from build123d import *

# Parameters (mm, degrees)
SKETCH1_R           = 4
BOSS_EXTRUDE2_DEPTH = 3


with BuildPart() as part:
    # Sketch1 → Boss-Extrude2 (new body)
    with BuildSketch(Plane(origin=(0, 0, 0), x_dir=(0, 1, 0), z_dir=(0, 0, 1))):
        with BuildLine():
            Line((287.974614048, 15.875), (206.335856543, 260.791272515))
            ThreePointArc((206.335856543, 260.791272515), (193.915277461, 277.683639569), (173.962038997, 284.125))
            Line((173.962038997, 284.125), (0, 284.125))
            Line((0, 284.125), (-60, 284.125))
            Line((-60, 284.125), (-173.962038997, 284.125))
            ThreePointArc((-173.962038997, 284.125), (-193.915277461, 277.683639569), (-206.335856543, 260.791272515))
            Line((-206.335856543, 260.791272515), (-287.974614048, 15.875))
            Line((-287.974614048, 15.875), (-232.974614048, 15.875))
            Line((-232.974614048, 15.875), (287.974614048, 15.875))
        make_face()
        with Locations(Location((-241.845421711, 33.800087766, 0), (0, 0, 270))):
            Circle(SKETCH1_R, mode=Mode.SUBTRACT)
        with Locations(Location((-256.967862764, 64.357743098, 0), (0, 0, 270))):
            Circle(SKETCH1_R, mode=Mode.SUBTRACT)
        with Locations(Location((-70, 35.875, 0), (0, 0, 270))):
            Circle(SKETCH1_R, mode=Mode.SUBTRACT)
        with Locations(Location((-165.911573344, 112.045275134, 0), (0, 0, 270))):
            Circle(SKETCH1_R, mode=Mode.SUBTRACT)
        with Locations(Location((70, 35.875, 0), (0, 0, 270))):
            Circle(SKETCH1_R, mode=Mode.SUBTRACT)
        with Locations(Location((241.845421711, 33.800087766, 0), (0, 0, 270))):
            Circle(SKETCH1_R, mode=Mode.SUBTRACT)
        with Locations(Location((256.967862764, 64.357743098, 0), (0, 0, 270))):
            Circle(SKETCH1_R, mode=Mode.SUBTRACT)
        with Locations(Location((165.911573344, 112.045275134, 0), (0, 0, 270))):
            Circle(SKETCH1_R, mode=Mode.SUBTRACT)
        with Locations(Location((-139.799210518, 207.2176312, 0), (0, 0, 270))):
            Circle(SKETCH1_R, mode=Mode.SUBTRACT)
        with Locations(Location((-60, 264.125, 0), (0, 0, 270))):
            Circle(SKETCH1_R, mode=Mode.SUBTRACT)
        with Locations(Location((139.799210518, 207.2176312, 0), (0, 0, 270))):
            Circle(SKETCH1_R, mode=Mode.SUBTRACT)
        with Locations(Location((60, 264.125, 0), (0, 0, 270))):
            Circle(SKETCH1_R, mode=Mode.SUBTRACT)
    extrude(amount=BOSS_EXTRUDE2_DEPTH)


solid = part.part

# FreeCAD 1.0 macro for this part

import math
import FreeCAD as App
import Part
import Sketcher

V = App.Vector

doc = App.newDocument("Part")
body = doc.addObject("PartDesign::Body", "Body")

sketch1 = doc.addObject("Sketcher::SketchObject", "Sketch")
body.addObject(sketch1)
sketch1.AttachmentSupport = (doc.XY_Plane, [""])
sketch1.MapMode = "FlatFace"
sketch1.addGeometry(Part.LineSegment(V(-15.9, 288, 0), V(-260.8, 206.3, 0)), False)
sketch1.addGeometry(Part.ArcOfCircle(Part.Circle(V(-250, 174, 0), V(0, 0, 1), 34.1), math.radians(108), math.radians(180)), False)
sketch1.addGeometry(Part.LineSegment(V(-284.1, 174, 0), V(-284.1, -174, 0)), False)
sketch1.addGeometry(Part.ArcOfCircle(Part.Circle(V(-250, -174, 0), V(0, 0, 1), 34.1), math.radians(180), math.radians(252)), False)
sketch1.addGeometry(Part.LineSegment(V(-260.8, -206.3, 0), V(-15.9, -288, 0)), False)
sketch1.addGeometry(Part.LineSegment(V(-15.9, -288, 0), V(-15.9, 288, 0)), False)
sketch1.addGeometry(Part.Circle(V(-33.8, -241.8, 0), V(0, 0, 1), 4), False)
sketch1.addGeometry(Part.Circle(V(-64.4, -257, 0), V(0, 0, 1), 4), False)
sketch1.addGeometry(Part.Circle(V(-35.9, -70, 0), V(0, 0, 1), 4), False)
sketch1.addGeometry(Part.Circle(V(-112, -165.9, 0), V(0, 0, 1), 4), False)
sketch1.addGeometry(Part.Circle(V(-35.9, 70, 0), V(0, 0, 1), 4), False)
sketch1.addGeometry(Part.Circle(V(-33.8, 241.8, 0), V(0, 0, 1), 4), False)
sketch1.addGeometry(Part.Circle(V(-64.4, 257, 0), V(0, 0, 1), 4), False)
sketch1.addGeometry(Part.Circle(V(-112, 165.9, 0), V(0, 0, 1), 4), False)
sketch1.addGeometry(Part.Circle(V(-207.2, -139.8, 0), V(0, 0, 1), 4), False)
sketch1.addGeometry(Part.Circle(V(-264.1, -60, 0), V(0, 0, 1), 4), False)
sketch1.addGeometry(Part.Circle(V(-207.2, 139.8, 0), V(0, 0, 1), 4), False)
sketch1.addGeometry(Part.Circle(V(-264.1, 60, 0), V(0, 0, 1), 4), False)
sketch1.addConstraint(Sketcher.Constraint("Tangent", 0, 2, 1, 1))
sketch1.addConstraint(Sketcher.Constraint("Tangent", 1, 2, 2, 1))
sketch1.addConstraint(Sketcher.Constraint("Tangent", 2, 2, 3, 1))
sketch1.addConstraint(Sketcher.Constraint("Tangent", 3, 2, 4, 1))
sketch1.addConstraint(Sketcher.Constraint("Coincident", 4, 2, 5, 1))
sketch1.addConstraint(Sketcher.Constraint("Coincident", 5, 2, 0, 1))
sketch1.addConstraint(Sketcher.Constraint("Vertical", 2))
sketch1.addConstraint(Sketcher.Constraint("Vertical", 5))
sketch1.addConstraint(Sketcher.Constraint("Equal", 1, 3))
sketch1.addConstraint(Sketcher.Constraint("Equal", 6, 7))
sketch1.addConstraint(Sketcher.Constraint("Equal", 7, 8))
sketch1.addConstraint(Sketcher.Constraint("Equal", 8, 9))
sketch1.addConstraint(Sketcher.Constraint("Equal", 9, 10))
sketch1.addConstraint(Sketcher.Constraint("Equal", 10, 11))
sketch1.addConstraint(Sketcher.Constraint("Equal", 11, 12))
sketch1.addConstraint(Sketcher.Constraint("Equal", 12, 13))
sketch1.addConstraint(Sketcher.Constraint("Equal", 13, 14))
sketch1.addConstraint(Sketcher.Constraint("Equal", 14, 15))
sketch1.addConstraint(Sketcher.Constraint("Equal", 15, 16))
sketch1.addConstraint(Sketcher.Constraint("Equal", 16, 17))
sketch1.addConstraint(Sketcher.Constraint("Symmetric", 8, 3, 10, 3, -1))
sketch1.addConstraint(Sketcher.Constraint("Symmetric", 6, 3, 11, 3, -1))
sketch1.addConstraint(Sketcher.Constraint("Symmetric", 7, 3, 12, 3, -1))
sketch1.addConstraint(Sketcher.Constraint("Symmetric", 9, 3, 13, 3, -1))
sketch1.addConstraint(Sketcher.Constraint("Symmetric", 14, 3, 16, 3, -1))
sketch1.addConstraint(Sketcher.Constraint("Symmetric", 15, 3, 17, 3, -1))
sketch1.addConstraint(Sketcher.Constraint("Symmetric", 0, 2, 3, 2, -1))
sketch1.addConstraint(Sketcher.Constraint("Diameter", 6, 8.0))
sketch1.addConstraint(Sketcher.Constraint("DistanceX", 1, 3, -1, 1, 250.0))
sketch1.addConstraint(Sketcher.Constraint("DistanceY", 8, 3, -1, 1, 70.0))
sketch1.addConstraint(Sketcher.Constraint("DistanceY", 15, 3, -1, 1, 60.0))
sketch1.addConstraint(Sketcher.Constraint("Radius", 1, 34.125))
sketch1.addConstraint(Sketcher.Constraint("DistanceX", 1, 2, 17, 3, 20.0))
sketch1.addConstraint(Sketcher.Constraint("DistanceX", 8, 3, 4, 2, 20.0))
sketch1.addConstraint(Sketcher.Constraint("DistanceX", 15, 3, 8, 3, 228.25))
sketch1.addConstraint(Sketcher.Constraint("DistanceY", 5, 1, 5, 2, 575.949228))
sketch1.addConstraint(Sketcher.Constraint("DistanceY", 7, 3, 1, 3, 430.929902))
sketch1.addConstraint(Sketcher.Constraint("Distance", 0, 258.164419))
sketch1.addConstraint(Sketcher.Constraint("DistanceY", 6, 3, -1, 1, 241.845422))
sketch1.addConstraint(Sketcher.Constraint("DistanceX", 14, 3, -1, 1, 207.217631))
sketch1.addConstraint(Sketcher.Constraint("DistanceY", 14, 3, -1, 1, 139.799211))
sketch1.addConstraint(Sketcher.Constraint("DistanceY", 7, 3, 9, 3, 91.056289))
sketch1.addConstraint(Sketcher.Constraint("DistanceX", 14, 3, 7, 3, 142.859888))
sketch1.addConstraint(Sketcher.Constraint("DistanceX", 6, 3, -1, 1, 33.800088))
sketch1.addConstraint(Sketcher.Constraint("DistanceX", 9, 3, -1, 1, 112.045275))
pad1 = doc.addObject("PartDesign::Pad", "Pad")
body.addObject(pad1)
pad1.Profile = sketch1
pad1.Length = 3

doc.recompute()
